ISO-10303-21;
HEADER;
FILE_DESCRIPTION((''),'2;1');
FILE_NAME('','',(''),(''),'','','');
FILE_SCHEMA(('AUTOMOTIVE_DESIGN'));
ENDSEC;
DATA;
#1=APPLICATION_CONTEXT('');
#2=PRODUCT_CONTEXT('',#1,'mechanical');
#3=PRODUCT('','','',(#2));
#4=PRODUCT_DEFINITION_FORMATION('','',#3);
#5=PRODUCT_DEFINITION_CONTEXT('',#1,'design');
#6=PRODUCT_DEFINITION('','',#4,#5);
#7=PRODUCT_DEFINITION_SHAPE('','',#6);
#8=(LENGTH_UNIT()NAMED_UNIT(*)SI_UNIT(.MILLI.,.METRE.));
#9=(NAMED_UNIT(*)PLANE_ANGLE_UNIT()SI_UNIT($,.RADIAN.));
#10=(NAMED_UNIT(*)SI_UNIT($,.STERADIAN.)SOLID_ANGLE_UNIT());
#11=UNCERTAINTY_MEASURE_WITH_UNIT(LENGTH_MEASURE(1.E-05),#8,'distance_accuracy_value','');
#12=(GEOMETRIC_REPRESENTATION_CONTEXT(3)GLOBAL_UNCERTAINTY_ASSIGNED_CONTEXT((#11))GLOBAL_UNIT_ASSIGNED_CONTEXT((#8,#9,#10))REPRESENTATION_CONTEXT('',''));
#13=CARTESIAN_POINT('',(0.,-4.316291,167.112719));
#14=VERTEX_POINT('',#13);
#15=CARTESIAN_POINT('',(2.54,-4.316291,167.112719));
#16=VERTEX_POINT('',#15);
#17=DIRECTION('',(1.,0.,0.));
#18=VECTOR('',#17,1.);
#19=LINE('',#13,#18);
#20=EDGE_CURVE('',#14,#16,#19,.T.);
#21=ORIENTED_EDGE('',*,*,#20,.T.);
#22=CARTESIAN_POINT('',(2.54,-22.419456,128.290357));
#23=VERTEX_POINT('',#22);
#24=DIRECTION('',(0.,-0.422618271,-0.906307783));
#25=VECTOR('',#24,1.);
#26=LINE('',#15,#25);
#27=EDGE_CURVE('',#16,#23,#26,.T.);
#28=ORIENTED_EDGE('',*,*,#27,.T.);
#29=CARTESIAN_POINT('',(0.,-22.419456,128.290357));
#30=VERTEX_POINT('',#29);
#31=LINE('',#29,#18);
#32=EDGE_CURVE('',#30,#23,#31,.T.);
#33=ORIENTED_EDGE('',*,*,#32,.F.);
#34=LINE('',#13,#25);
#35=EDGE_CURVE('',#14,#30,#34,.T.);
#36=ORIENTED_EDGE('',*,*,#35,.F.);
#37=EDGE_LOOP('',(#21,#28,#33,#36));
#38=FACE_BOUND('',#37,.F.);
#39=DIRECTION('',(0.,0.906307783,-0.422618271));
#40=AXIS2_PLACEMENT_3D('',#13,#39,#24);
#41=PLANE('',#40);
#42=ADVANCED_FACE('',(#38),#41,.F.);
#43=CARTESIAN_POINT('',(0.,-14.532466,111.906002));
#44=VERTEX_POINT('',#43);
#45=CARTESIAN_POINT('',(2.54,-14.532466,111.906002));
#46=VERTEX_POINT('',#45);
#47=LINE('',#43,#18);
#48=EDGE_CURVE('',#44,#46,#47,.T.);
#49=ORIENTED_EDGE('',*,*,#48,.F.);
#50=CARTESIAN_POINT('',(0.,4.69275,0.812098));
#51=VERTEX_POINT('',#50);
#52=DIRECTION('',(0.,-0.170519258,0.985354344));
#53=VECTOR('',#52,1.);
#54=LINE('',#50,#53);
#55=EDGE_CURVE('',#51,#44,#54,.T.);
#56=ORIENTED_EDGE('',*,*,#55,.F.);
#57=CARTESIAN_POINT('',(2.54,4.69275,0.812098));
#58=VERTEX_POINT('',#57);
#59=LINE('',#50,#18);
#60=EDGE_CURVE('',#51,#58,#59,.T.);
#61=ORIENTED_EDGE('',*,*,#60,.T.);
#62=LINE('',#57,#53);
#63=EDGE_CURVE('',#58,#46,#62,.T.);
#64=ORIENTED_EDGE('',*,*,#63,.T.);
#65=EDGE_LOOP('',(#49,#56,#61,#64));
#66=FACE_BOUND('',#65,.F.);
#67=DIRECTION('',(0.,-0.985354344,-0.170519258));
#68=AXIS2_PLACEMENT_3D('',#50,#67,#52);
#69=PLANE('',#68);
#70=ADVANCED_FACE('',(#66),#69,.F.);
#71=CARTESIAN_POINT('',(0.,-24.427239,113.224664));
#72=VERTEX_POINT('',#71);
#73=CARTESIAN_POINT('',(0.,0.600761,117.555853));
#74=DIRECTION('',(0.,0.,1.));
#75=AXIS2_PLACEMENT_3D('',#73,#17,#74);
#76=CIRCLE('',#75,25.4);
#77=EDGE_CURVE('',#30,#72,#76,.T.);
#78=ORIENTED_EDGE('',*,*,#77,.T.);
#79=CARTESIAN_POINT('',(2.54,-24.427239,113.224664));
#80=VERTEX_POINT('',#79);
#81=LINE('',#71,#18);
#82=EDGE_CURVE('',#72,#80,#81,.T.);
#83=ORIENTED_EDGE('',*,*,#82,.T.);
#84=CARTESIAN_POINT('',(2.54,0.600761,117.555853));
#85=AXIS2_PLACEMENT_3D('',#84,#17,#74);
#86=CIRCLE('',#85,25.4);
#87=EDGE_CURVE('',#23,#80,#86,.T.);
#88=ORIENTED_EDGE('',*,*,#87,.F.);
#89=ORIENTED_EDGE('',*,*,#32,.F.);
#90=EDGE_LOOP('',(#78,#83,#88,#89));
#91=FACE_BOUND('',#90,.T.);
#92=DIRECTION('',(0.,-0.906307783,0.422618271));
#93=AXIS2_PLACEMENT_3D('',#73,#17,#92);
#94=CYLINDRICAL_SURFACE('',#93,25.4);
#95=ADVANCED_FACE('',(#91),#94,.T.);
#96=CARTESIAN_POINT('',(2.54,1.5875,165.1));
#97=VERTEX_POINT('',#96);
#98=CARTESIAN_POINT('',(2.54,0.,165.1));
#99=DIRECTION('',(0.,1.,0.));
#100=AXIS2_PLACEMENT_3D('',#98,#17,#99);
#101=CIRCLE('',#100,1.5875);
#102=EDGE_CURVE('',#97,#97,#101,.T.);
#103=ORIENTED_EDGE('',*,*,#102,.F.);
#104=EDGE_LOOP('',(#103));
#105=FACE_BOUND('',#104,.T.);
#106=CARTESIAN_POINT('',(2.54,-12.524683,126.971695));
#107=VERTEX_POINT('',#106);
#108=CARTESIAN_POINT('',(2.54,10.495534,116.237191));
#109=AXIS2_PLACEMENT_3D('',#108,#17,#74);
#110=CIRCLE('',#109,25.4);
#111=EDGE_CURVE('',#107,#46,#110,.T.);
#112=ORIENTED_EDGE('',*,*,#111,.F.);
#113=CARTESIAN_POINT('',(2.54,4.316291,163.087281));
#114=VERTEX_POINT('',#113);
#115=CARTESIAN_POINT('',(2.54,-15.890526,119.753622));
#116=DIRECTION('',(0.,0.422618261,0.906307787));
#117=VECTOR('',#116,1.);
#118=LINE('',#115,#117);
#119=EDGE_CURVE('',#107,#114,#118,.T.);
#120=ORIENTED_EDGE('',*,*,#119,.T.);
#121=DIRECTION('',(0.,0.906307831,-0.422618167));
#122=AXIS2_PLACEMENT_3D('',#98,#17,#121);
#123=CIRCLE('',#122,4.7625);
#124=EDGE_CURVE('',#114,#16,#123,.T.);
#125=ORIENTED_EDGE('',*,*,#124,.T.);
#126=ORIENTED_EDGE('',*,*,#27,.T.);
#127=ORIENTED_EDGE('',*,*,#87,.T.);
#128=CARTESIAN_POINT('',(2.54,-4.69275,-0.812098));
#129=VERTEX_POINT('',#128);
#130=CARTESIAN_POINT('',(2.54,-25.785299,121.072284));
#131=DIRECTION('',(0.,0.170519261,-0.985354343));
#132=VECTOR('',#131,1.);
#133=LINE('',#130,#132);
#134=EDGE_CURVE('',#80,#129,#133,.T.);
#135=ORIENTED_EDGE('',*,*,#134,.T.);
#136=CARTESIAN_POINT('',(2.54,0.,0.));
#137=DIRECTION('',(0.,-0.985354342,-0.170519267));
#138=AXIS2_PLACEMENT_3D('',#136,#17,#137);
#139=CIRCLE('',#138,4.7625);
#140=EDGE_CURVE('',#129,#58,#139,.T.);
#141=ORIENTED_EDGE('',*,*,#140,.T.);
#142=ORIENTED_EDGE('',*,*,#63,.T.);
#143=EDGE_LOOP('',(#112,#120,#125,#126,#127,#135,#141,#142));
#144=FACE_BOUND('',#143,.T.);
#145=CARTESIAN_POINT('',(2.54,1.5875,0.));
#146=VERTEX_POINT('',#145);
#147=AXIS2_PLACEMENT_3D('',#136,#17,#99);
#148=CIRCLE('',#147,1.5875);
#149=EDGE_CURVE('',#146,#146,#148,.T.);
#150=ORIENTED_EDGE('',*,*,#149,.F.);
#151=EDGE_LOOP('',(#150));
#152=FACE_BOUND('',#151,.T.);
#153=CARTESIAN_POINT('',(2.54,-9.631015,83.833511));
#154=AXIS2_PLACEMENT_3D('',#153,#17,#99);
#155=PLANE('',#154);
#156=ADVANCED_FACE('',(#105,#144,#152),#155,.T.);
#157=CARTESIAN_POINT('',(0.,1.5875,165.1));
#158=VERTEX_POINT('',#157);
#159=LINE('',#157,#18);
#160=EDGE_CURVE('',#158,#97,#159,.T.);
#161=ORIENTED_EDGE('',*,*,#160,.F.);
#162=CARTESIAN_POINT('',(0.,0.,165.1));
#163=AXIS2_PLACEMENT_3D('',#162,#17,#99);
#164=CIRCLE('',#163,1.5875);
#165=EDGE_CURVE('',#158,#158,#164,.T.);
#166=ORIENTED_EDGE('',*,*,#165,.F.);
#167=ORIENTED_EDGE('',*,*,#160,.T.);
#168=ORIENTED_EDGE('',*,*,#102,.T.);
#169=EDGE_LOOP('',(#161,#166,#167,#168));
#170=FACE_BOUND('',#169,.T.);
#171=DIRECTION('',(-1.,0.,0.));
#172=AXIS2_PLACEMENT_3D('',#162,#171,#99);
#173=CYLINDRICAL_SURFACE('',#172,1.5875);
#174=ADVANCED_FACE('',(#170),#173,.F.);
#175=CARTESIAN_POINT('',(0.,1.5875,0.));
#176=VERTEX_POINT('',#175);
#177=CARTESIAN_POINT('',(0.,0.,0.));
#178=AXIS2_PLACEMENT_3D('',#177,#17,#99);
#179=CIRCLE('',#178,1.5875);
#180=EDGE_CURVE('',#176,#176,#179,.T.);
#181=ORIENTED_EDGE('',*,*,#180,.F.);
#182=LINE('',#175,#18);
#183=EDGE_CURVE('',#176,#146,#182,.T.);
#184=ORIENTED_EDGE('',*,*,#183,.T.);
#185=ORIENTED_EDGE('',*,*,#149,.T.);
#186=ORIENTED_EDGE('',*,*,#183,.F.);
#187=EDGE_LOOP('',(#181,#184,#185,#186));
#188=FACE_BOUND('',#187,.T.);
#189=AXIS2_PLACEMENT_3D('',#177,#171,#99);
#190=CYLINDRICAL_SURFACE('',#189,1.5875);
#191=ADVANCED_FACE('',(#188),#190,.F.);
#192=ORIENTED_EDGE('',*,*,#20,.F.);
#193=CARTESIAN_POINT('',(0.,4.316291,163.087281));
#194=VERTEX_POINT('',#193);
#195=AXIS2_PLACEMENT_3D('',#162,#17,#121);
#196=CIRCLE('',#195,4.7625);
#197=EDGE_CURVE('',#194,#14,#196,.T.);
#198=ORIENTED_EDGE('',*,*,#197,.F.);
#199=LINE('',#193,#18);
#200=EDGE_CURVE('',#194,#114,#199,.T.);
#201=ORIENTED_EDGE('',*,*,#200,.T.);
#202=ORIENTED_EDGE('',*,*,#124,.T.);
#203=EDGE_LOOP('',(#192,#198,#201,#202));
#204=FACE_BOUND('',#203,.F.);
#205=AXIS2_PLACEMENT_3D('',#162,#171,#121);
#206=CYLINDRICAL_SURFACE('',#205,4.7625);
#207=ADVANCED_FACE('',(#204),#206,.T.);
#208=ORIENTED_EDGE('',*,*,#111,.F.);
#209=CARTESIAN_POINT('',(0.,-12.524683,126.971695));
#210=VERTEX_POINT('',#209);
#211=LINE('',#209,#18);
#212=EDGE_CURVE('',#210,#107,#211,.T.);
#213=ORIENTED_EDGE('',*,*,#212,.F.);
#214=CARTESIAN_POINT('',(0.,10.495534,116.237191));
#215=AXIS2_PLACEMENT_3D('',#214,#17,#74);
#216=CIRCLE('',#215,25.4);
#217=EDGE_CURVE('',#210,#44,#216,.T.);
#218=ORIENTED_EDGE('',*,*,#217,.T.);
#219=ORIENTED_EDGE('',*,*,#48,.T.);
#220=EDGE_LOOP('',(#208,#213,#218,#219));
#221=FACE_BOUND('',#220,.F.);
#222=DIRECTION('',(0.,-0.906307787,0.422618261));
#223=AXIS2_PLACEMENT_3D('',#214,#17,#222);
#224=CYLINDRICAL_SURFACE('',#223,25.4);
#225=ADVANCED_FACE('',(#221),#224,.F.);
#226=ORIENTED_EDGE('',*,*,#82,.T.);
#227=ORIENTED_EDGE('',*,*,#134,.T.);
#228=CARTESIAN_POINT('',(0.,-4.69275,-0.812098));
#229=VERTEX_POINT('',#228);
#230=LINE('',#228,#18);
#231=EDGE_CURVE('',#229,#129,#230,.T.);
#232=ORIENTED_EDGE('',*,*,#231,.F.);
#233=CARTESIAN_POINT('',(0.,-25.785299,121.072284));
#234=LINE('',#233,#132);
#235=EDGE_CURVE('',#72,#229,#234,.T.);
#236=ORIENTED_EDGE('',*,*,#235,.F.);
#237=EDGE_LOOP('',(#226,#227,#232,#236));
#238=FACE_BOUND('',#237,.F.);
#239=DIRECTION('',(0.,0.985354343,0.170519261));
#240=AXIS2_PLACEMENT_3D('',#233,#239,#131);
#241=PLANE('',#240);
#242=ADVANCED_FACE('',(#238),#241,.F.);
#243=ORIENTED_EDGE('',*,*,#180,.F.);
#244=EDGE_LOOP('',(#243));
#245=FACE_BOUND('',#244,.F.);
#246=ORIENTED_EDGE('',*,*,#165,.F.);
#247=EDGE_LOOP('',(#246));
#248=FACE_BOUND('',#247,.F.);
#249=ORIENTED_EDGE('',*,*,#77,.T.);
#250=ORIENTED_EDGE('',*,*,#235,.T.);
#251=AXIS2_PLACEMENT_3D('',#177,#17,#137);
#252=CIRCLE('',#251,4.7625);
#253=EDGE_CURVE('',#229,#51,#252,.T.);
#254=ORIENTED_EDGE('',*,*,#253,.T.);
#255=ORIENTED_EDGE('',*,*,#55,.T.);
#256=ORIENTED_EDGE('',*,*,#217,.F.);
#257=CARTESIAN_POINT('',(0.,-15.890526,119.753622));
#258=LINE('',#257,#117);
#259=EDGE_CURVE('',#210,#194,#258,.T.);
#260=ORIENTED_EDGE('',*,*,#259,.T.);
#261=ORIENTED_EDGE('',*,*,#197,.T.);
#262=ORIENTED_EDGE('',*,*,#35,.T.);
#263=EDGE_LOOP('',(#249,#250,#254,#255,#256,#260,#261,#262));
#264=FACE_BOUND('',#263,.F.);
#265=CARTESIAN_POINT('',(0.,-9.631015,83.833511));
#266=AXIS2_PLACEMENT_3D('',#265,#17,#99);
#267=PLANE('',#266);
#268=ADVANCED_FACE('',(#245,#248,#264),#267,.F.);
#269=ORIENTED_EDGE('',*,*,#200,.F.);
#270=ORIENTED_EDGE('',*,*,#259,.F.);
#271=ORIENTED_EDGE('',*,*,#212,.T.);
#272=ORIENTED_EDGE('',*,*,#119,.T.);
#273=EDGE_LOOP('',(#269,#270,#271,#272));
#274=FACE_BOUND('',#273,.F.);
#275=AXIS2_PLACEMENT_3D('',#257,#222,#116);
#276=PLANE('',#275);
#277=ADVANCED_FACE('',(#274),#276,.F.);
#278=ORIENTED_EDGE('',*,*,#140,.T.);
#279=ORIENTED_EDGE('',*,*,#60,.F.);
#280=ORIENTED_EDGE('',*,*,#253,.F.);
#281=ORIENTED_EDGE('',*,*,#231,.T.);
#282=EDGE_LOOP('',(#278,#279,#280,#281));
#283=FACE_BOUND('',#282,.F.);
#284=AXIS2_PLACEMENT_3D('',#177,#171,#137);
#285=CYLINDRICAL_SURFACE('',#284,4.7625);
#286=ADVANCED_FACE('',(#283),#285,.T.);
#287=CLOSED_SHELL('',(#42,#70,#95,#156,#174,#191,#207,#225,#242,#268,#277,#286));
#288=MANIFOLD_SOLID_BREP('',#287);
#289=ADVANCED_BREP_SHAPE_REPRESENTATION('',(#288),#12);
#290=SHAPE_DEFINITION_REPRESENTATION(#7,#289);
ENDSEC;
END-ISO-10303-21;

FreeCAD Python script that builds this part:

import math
import FreeCAD as App
import Part
import Sketcher
from FreeCAD import Vector
Q = App.Units.Quantity


def edges_at(feature, points):
    """Names of the edges that pass closest to the given points."""
    edges = feature.Shape.Edges
    near = lambda p: min(range(len(edges)), key=lambda i: edges[i].distToShape(Part.Vertex(*p))[0])
    return sorted({f"Edge{near(p) + 1}" for p in points})

doc = App.newDocument("Part")
params = doc.addObject("Spreadsheet::Sheet", "Params")
for row, (alias, value) in enumerate([
    ("sketch1_length", "2 in"),
    ("sketch1_diameter", "0.125 in"),
    ("sketch1_radius", "0.1875 in"),
    ("pad1_length", "0.1 in"),
    ("fillet_radius", "1 in"),
], start=1):
    params.set(f"A{row}", alias)
    params.set(f"B{row}", "=" + value)
    params.setAlias(f"B{row}", alias)

body = doc.addObject("PartDesign::Body", "Body")

# Sketch on YZ plane
sketch1 = body.newObject("Sketcher::SketchObject", "Sketch")
sketch1.AttachmentSupport = (doc.getObject("YZ_Plane"), [""])
sketch1.MapMode = "FlatFace"
sketch1.addGeometry([
    Part.ArcOfCircle(Part.Circle(Vector(0, 165.1, 0), Vector(0, 0, 1), 4.8), math.radians(-25), math.radians(155)),  # 0
    Part.LineSegment(Vector(-4.3, 167.1, 0), Vector(-25.8, 121.1, 0)),  # 1
    Part.LineSegment(Vector(-25.8, 121.1, 0), Vector(-4.7, -0.8, 0)),  # 2
    Part.ArcOfCircle(Part.Circle(Vector(0, 0, 0), Vector(0, 0, 1), 4.8), math.radians(-170), math.radians(10)),  # 3
    Part.LineSegment(Vector(4.7, 0.8, 0), Vector(-15.9, 119.8, 0)),  # 4
    Part.LineSegment(Vector(-15.9, 119.8, 0), Vector(4.3, 163.1, 0)),  # 5
    Part.Circle(Vector(0, 0, 0), Vector(0, 0, 1), 1.6),  # 6
    Part.Circle(Vector(0, 165.1, 0), Vector(0, 0, 1), 1.6),  # 7
], False)
sketch1.addConstraint([
    Sketcher.Constraint("Tangent", 0, 2, 1, 1),
    Sketcher.Constraint("Coincident", 1, 2, 2, 1),
    Sketcher.Constraint("Tangent", 2, 2, 3, 1),
    Sketcher.Constraint("Tangent", 3, 2, 4, 1),
    Sketcher.Constraint("Coincident", 4, 2, 5, 1),
    Sketcher.Constraint("Tangent", 5, 2, 0, 1),
    Sketcher.Constraint("Coincident", 3, 3, -1, 1),
    Sketcher.Constraint("Coincident", 6, 3, -1, 1),
    Sketcher.Constraint("Coincident", 7, 3, 0, 3),
    Sketcher.Constraint("Equal", 0, 3),
    Sketcher.Constraint("Equal", 6, 7),
    Sketcher.Constraint("PointOnObject", 0, 3, -2),
    Sketcher.Constraint("Parallel", 2, 4),
    Sketcher.Constraint("Parallel", 1, 5),
    Sketcher.Constraint("Distance", 1, Q("2 in")),
    Sketcher.Constraint("Diameter", 6, Q("0.125 in")),
    Sketcher.Constraint("Angle", 1, Q("-115.000001 deg")),
    Sketcher.Constraint("Radius", 0, Q("0.1875 in")),
    Sketcher.Constraint("DistanceY", -1, 1, 0, 3, Q("6.5 in")),
])
sketch1.setExpression("Constraints[14]", "Params.sketch1_length")
sketch1.setExpression("Constraints[15]", "Params.sketch1_diameter")
sketch1.setExpression("Constraints[17]", "Params.sketch1_radius")
pad1 = body.newObject("PartDesign::Pad", "Pad")
pad1.Profile = sketch1
pad1.setExpression("Length", "Params.pad1_length")
doc.recompute()

fillet = body.newObject("PartDesign::Fillet", "Fillet")
fillet.Base = (pad1, edges_at(pad1, [(1.27, -15.891, 119.754), (1.27, -25.785, 121.072)]))
fillet.setExpression("Radius", "Params.fillet_radius")

doc.recompute()
